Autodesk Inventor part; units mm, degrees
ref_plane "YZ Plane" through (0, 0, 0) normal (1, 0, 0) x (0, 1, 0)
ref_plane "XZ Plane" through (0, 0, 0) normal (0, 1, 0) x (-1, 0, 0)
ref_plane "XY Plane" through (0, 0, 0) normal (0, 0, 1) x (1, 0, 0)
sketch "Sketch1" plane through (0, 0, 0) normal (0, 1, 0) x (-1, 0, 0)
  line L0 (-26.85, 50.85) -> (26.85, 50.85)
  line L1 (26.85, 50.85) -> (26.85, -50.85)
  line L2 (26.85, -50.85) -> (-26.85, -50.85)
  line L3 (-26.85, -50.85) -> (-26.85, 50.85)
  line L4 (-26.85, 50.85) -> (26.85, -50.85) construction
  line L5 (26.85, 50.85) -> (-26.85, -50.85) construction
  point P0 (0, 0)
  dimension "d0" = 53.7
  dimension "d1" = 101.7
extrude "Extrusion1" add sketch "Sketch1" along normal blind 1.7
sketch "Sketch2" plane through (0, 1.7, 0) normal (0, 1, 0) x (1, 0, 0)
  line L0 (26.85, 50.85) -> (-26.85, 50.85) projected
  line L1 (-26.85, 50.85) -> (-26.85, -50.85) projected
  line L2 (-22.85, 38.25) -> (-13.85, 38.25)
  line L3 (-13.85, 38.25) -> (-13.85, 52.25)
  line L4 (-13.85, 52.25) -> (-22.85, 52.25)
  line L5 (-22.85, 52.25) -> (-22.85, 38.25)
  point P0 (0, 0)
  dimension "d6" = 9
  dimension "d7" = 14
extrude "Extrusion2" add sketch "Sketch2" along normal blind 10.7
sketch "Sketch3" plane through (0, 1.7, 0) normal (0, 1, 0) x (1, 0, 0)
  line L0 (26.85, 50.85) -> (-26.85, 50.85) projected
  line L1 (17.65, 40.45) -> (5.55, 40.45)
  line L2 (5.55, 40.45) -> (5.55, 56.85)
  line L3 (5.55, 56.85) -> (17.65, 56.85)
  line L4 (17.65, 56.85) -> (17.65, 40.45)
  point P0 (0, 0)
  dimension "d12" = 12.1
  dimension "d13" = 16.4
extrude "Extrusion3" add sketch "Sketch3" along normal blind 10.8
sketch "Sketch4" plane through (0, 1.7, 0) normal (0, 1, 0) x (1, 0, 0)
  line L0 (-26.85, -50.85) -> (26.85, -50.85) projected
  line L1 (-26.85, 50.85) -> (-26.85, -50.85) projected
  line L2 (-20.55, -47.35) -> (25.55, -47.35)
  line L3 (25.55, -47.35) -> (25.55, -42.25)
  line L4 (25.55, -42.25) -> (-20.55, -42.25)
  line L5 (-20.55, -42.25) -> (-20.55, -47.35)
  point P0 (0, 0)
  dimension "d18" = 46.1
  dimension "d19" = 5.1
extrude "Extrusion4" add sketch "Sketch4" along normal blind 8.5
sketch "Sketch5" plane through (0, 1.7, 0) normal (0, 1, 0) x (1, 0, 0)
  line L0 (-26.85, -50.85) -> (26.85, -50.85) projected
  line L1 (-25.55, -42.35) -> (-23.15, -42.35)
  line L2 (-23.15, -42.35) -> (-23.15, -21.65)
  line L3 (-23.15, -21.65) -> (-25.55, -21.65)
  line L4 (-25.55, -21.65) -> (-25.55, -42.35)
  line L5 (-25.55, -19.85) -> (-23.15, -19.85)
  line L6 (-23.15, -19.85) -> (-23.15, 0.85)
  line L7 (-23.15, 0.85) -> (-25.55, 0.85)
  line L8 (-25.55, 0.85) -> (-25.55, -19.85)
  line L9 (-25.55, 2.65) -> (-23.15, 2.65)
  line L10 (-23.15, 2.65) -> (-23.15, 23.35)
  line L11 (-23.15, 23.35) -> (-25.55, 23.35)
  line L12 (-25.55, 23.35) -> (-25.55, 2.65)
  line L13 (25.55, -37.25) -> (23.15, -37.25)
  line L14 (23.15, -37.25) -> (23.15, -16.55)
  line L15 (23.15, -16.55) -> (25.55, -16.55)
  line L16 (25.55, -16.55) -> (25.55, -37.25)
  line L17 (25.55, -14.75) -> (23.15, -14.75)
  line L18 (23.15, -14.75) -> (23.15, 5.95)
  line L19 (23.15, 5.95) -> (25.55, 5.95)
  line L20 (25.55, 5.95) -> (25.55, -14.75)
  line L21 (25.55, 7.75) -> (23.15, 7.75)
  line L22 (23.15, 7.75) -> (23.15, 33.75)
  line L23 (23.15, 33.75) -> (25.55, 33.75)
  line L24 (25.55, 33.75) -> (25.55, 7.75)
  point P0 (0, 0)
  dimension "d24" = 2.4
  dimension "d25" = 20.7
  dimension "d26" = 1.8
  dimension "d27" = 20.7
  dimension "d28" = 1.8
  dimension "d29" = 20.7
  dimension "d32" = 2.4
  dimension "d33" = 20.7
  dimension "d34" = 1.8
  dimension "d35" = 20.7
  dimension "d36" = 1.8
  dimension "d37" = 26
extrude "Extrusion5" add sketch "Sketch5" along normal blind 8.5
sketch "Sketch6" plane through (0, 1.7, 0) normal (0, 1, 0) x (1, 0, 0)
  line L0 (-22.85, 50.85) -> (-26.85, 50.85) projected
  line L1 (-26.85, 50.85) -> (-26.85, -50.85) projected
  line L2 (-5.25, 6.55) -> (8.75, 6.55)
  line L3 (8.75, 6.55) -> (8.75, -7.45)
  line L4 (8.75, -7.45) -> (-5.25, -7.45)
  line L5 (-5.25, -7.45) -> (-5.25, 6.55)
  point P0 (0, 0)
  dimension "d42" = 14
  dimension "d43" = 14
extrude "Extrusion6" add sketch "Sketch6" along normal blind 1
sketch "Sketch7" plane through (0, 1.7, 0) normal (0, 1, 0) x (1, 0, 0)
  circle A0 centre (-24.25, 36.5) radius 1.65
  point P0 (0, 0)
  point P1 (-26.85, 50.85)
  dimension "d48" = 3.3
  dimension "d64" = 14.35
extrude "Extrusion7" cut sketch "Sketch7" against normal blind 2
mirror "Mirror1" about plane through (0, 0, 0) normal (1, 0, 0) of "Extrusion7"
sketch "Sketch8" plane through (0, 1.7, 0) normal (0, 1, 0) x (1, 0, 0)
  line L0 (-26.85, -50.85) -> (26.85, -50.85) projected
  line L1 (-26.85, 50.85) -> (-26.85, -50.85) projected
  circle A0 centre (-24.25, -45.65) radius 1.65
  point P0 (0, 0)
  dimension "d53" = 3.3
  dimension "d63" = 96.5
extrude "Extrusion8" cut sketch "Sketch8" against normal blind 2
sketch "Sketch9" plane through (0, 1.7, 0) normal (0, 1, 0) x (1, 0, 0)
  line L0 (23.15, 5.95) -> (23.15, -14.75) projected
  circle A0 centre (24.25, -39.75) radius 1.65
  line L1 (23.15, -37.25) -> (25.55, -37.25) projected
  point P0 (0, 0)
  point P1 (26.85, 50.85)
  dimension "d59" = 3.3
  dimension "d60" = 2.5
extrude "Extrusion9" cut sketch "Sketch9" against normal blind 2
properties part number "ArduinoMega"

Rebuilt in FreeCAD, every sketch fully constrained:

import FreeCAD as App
import Part
import Sketcher

V = App.Vector
Q = App.Units.Quantity

doc = App.newDocument("Part")
body = doc.addObject("PartDesign::Body", "Body")

# Sketch on XZ plane
sketch1 = doc.addObject("Sketcher::SketchObject", "Sketch")
body.addObject(sketch1)
sketch1.AttachmentSupport = (doc.XZ_Plane, [""])
sketch1.MapMode = "FlatFace"
sketch1.addGeometry([
    Part.LineSegment(V(-27, 51, 0), V(27, 51, 0)),
    Part.LineSegment(V(27, 51, 0), V(27, -51, 0)),
    Part.LineSegment(V(27, -51, 0), V(-27, -51, 0)),
    Part.LineSegment(V(-27, -51, 0), V(-27, 51, 0)),
], False)
sketch1.addConstraint([
    Sketcher.Constraint("Coincident", 0, 2, 1, 1),
    Sketcher.Constraint("Coincident", 1, 2, 2, 1),
    Sketcher.Constraint("Coincident", 2, 2, 3, 1),
    Sketcher.Constraint("Coincident", 3, 2, 0, 1),
    Sketcher.Constraint("Horizontal", 0),
    Sketcher.Constraint("Vertical", 1),
    Sketcher.Constraint("Horizontal", 2),
    Sketcher.Constraint("Vertical", 3),
    Sketcher.Constraint("Symmetric", 0, 2, 2, 2, -1, 1),
    Sketcher.Constraint("DistanceX", 0, 1, 0, 2, Q("53.7 mm")),
    Sketcher.Constraint("DistanceY", 1, 2, 1, 1, Q("101.7 mm")),
])
pad1 = doc.addObject("PartDesign::Pad", "Pad")
body.addObject(pad1)
pad1.Profile = sketch1
pad1.Length = 1.7
pad1.Reversed = True

# Sketch on XZ plane
sketch2 = doc.addObject("Sketcher::SketchObject", "Sketch001")
body.addObject(sketch2)
sketch2.AttachmentSupport = (doc.XZ_Plane, [""])
sketch2.MapMode = "FlatFace"
sketch2.AttachmentOffset = App.Placement(V(0, 0, -1.7), App.Rotation())
sketch2.addGeometry([
    Part.LineSegment(V(-14, -38, 0), V(-14, -52, 0)),
    Part.LineSegment(V(-14, -52, 0), V(-23, -52, 0)),
    Part.LineSegment(V(-23, -52, 0), V(-23, -38, 0)),
    Part.LineSegment(V(-23, -38, 0), V(-14, -38, 0)),
], False)
sketch2.addConstraint([
    Sketcher.Constraint("Coincident", 0, 2, 1, 1),
    Sketcher.Constraint("Coincident", 1, 2, 2, 1),
    Sketcher.Constraint("Coincident", 2, 2, 3, 1),
    Sketcher.Constraint("Coincident", 3, 2, 0, 1),
    Sketcher.Constraint("Vertical", 0),
    Sketcher.Constraint("Horizontal", 1),
    Sketcher.Constraint("Vertical", 2),
    Sketcher.Constraint("Horizontal", 3),
    Sketcher.Constraint("DistanceX", 1, 2, 1, 1, Q("9 mm")),
    Sketcher.Constraint("DistanceY", 0, 2, 0, 1, Q("14 mm")),
    Sketcher.Constraint("DistanceX", 0, 2, -1, 1, Q("13.85 mm")),
    Sketcher.Constraint("DistanceY", 0, 2, -1, 1, Q("52.25 mm")),
])
pad2 = doc.addObject("PartDesign::Pad", "Pad001")
body.addObject(pad2)
pad2.Profile = sketch2
pad2.Length = 10.7
pad2.Reversed = True

# Sketch on XZ plane
sketch3 = doc.addObject("Sketcher::SketchObject", "Sketch002")
body.addObject(sketch3)
sketch3.AttachmentSupport = (doc.XZ_Plane, [""])
sketch3.MapMode = "FlatFace"
sketch3.AttachmentOffset = App.Placement(V(0, 0, -1.7), App.Rotation())
sketch3.addGeometry([
    Part.LineSegment(V(18, -40, 0), V(18, -57, 0)),
    Part.LineSegment(V(18, -57, 0), V(6, -57, 0)),
    Part.LineSegment(V(6, -57, 0), V(6, -40, 0)),
    Part.LineSegment(V(6, -40, 0), V(18, -40, 0)),
], False)
sketch3.addConstraint([
    Sketcher.Constraint("Coincident", 0, 2, 1, 1),
    Sketcher.Constraint("Coincident", 1, 2, 2, 1),
    Sketcher.Constraint("Coincident", 2, 2, 3, 1),
    Sketcher.Constraint("Coincident", 3, 2, 0, 1),
    Sketcher.Constraint("Vertical", 0),
    Sketcher.Constraint("Horizontal", 1),
    Sketcher.Constraint("Vertical", 2),
    Sketcher.Constraint("Horizontal", 3),
    Sketcher.Constraint("DistanceX", 1, 2, 1, 1, Q("12.1 mm")),
    Sketcher.Constraint("DistanceY", 0, 2, 0, 1, Q("16.4 mm")),
    Sketcher.Constraint("DistanceX", -1, 1, 0, 2, Q("17.65 mm")),
    Sketcher.Constraint("DistanceY", 0, 2, -1, 1, Q("56.85 mm")),
])
pad3 = doc.addObject("PartDesign::Pad", "Pad002")
body.addObject(pad3)
pad3.Profile = sketch3
pad3.Length = 10.8
pad3.Reversed = True

# Sketch on XZ plane
sketch4 = doc.addObject("Sketcher::SketchObject", "Sketch003")
body.addObject(sketch4)
sketch4.AttachmentSupport = (doc.XZ_Plane, [""])
sketch4.MapMode = "FlatFace"
sketch4.AttachmentOffset = App.Placement(V(0, 0, -1.7), App.Rotation())
sketch4.addGeometry([
    Part.LineSegment(V(-21, 42, 0), V(-21, 47, 0)),
    Part.LineSegment(V(-21, 47, 0), V(26, 47, 0)),
    Part.LineSegment(V(26, 47, 0), V(26, 42, 0)),
    Part.LineSegment(V(26, 42, 0), V(-21, 42, 0)),
], False)
sketch4.addConstraint([
    Sketcher.Constraint("Coincident", 0, 2, 1, 1),
    Sketcher.Constraint("Coincident", 1, 2, 2, 1),
    Sketcher.Constraint("Coincident", 2, 2, 3, 1),
    Sketcher.Constraint("Coincident", 3, 2, 0, 1),
    Sketcher.Constraint("Vertical", 0),
    Sketcher.Constraint("Horizontal", 1),
    Sketcher.Constraint("Vertical", 2),
    Sketcher.Constraint("Horizontal", 3),
    Sketcher.Constraint("DistanceX", 1, 1, 1, 2, Q("46.1 mm")),
    Sketcher.Constraint("DistanceY", 0, 1, 0, 2, Q("5.1 mm")),
    Sketcher.Constraint("DistanceX", 0, 2, -1, 1, Q("20.55 mm")),
    Sketcher.Constraint("DistanceY", -1, 1, 0, 2, Q("47.35 mm")),
])
pad4 = doc.addObject("PartDesign::Pad", "Pad003")
body.addObject(pad4)
pad4.Profile = sketch4
pad4.Length = 8.5
pad4.Reversed = True

# Sketch on XZ plane
sketch5 = doc.addObject("Sketcher::SketchObject", "Sketch004")
body.addObject(sketch5)
sketch5.AttachmentSupport = (doc.XZ_Plane, [""])
sketch5.MapMode = "FlatFace"
sketch5.AttachmentOffset = App.Placement(V(0, 0, -1.7), App.Rotation())
sketch5.addGeometry([
    Part.LineSegment(V(-25.6, 21.6, 0), V(-25.6, 42.4, 0)),  # 0
    Part.LineSegment(V(-25.6, 42.4, 0), V(-23.1, 42.4, 0)),  # 1
    Part.LineSegment(V(-23.1, 42.4, 0), V(-23.1, 21.6, 0)),  # 2
    Part.LineSegment(V(-23.1, 21.6, 0), V(-25.6, 21.6, 0)),  # 3
    Part.LineSegment(V(-25.6, -0.8, 0), V(-25.6, 19.9, 0)),  # 4
    Part.LineSegment(V(-25.6, 19.9, 0), V(-23.1, 19.9, 0)),  # 5
    Part.LineSegment(V(-23.1, 19.9, 0), V(-23.1, -0.8, 0)),  # 6
    Part.LineSegment(V(-23.1, -0.8, 0), V(-25.6, -0.8, 0)),  # 7
    Part.LineSegment(V(-25.6, -23.4, 0), V(-25.6, -2.6, 0)),  # 8
    Part.LineSegment(V(-25.6, -2.6, 0), V(-23.1, -2.6, 0)),  # 9
    Part.LineSegment(V(-23.1, -2.6, 0), V(-23.1, -23.4, 0)),  # 10
    Part.LineSegment(V(-23.1, -23.4, 0), V(-25.6, -23.4, 0)),  # 11
    Part.LineSegment(V(23.1, 37.2, 0), V(25.6, 37.2, 0)),  # 12
    Part.LineSegment(V(25.6, 37.2, 0), V(25.6, 16.6, 0)),  # 13
    Part.LineSegment(V(25.6, 16.6, 0), V(23.1, 16.6, 0)),  # 14
    Part.LineSegment(V(23.1, 16.6, 0), V(23.1, 37.2, 0)),  # 15
    Part.LineSegment(V(23.1, 14.8, 0), V(25.6, 14.8, 0)),  # 16
    Part.LineSegment(V(25.6, 14.8, 0), V(25.6, -6, 0)),  # 17
    Part.LineSegment(V(25.6, -6, 0), V(23.1, -6, 0)),  # 18
    Part.LineSegment(V(23.1, -6, 0), V(23.1, 14.8, 0)),  # 19
    Part.LineSegment(V(23.1, -7.8, 0), V(25.6, -7.8, 0)),  # 20
    Part.LineSegment(V(25.6, -7.8, 0), V(25.6, -33.8, 0)),  # 21
    Part.LineSegment(V(25.6, -33.8, 0), V(23.1, -33.8, 0)),  # 22
    Part.LineSegment(V(23.1, -33.8, 0), V(23.1, -7.8, 0)),  # 23
], False)
sketch5.addConstraint([
    Sketcher.Constraint("Coincident", 0, 2, 1, 1),
    Sketcher.Constraint("Coincident", 1, 2, 2, 1),
    Sketcher.Constraint("Coincident", 2, 2, 3, 1),
    Sketcher.Constraint("Coincident", 3, 2, 0, 1),
    Sketcher.Constraint("Coincident", 4, 2, 5, 1),
    Sketcher.Constraint("Coincident", 5, 2, 6, 1),
    Sketcher.Constraint("Coincident", 6, 2, 7, 1),
    Sketcher.Constraint("Coincident", 7, 2, 4, 1),
    Sketcher.Constraint("Coincident", 8, 2, 9, 1),
    Sketcher.Constraint("Coincident", 9, 2, 10, 1),
    Sketcher.Constraint("Coincident", 10, 2, 11, 1),
    Sketcher.Constraint("Coincident", 11, 2, 8, 1),
    Sketcher.Constraint("Coincident", 12, 2, 13, 1),
    Sketcher.Constraint("Coincident", 13, 2, 14, 1),
    Sketcher.Constraint("Coincident", 14, 2, 15, 1),
    Sketcher.Constraint("Coincident", 15, 2, 12, 1),
    Sketcher.Constraint("Coincident", 16, 2, 17, 1),
    Sketcher.Constraint("Coincident", 17, 2, 18, 1),
    Sketcher.Constraint("Coincident", 18, 2, 19, 1),
    Sketcher.Constraint("Coincident", 19, 2, 16, 1),
    Sketcher.Constraint("Coincident", 20, 2, 21, 1),
    Sketcher.Constraint("Coincident", 21, 2, 22, 1),
    Sketcher.Constraint("Coincident", 22, 2, 23, 1),
    Sketcher.Constraint("Coincident", 23, 2, 20, 1),
    Sketcher.Constraint("Vertical", 0),
    Sketcher.Constraint("Horizontal", 1),
    Sketcher.Constraint("Vertical", 2),
    Sketcher.Constraint("Horizontal", 3),
    Sketcher.Constraint("Vertical", 4),
    Sketcher.Constraint("Horizontal", 5),
    Sketcher.Constraint("Vertical", 6),
    Sketcher.Constraint("Horizontal", 7),
    Sketcher.Constraint("Vertical", 8),
    Sketcher.Constraint("Horizontal", 9),
    Sketcher.Constraint("Vertical", 10),
    Sketcher.Constraint("Horizontal", 11),
    Sketcher.Constraint("Horizontal", 12),
    Sketcher.Constraint("Vertical", 13),
    Sketcher.Constraint("Horizontal", 14),
    Sketcher.Constraint("Vertical", 15),
    Sketcher.Constraint("Horizontal", 16),
    Sketcher.Constraint("Vertical", 17),
    Sketcher.Constraint("Horizontal", 18),
    Sketcher.Constraint("Vertical", 19),
    Sketcher.Constraint("Horizontal", 20),
    Sketcher.Constraint("Vertical", 21),
    Sketcher.Constraint("Horizontal", 22),
    Sketcher.Constraint("Vertical", 23),
    Sketcher.Constraint("Vertical", 3, 2, 4, 2),
    Sketcher.Constraint("Vertical", 2, 2, 5, 2),
    Sketcher.Constraint("Vertical", 7, 2, 8, 2),
    Sketcher.Constraint("Vertical", 6, 2, 9, 2),
    Sketcher.Constraint("Vertical", 13, 2, 16, 2),
    Sketcher.Constraint("Vertical", 15, 2, 18, 2),
    Sketcher.Constraint("Vertical", 17, 2, 20, 2),
    Sketcher.Constraint("Vertical", 19, 2, 22, 2),
    Sketcher.Constraint("Equal", 11, 12),
    Sketcher.Constraint("Equal", 2, 4),
    Sketcher.Constraint("Equal", 6, 8),
    Sketcher.Constraint("Equal", 10, 13),
    Sketcher.Constraint("Equal", 15, 17),
    Sketcher.Constraint("DistanceY", 21, 2, 21, 1, Q("26 mm")),
    Sketcher.Constraint("DistanceX", 1, 1, 1, 2, Q("2.4 mm")),
    Sketcher.Constraint("DistanceY", 0, 1, 0, 2, Q("20.7 mm")),
    Sketcher.Constraint("DistanceY", 4, 2, 3, 2, Q("1.8 mm")),
    Sketcher.Constraint("DistanceY", 8, 2, 7, 2, Q("1.8 mm")),
    Sketcher.Constraint("DistanceY", 16, 2, 13, 2, Q("1.8 mm")),
    Sketcher.Constraint("DistanceY", 20, 2, 17, 2, Q("1.8 mm")),
    Sketcher.Constraint("DistanceX", 1, 2, 12, 2, Q("48.7 mm")),
    Sketcher.Constraint("DistanceY", 12, 2, 1, 2, Q("5.1 mm")),
    Sketcher.Constraint("DistanceX", 0, 2, -1, 1, Q("25.55 mm")),
    Sketcher.Constraint("DistanceY", -1, 1, 0, 2, Q("42.35 mm")),
])
pad5 = doc.addObject("PartDesign::Pad", "Pad004")
body.addObject(pad5)
pad5.Profile = sketch5
pad5.Length = 8.5
pad5.Reversed = True

# Sketch on XZ plane
sketch6 = doc.addObject("Sketcher::SketchObject", "Sketch005")
body.addObject(sketch6)
sketch6.AttachmentSupport = (doc.XZ_Plane, [""])
sketch6.MapMode = "FlatFace"
sketch6.AttachmentOffset = App.Placement(V(0, 0, -1.7), App.Rotation())
sketch6.addGeometry([
    Part.LineSegment(V(9, -7, 0), V(-5, -7, 0)),
    Part.LineSegment(V(-5, -7, 0), V(-5, 7, 0)),
    Part.LineSegment(V(-5, 7, 0), V(9, 7, 0)),
    Part.LineSegment(V(9, 7, 0), V(9, -7, 0)),
], False)
sketch6.addConstraint([
    Sketcher.Constraint("Coincident", 0, 2, 1, 1),
    Sketcher.Constraint("Coincident", 1, 2, 2, 1),
    Sketcher.Constraint("Coincident", 2, 2, 3, 1),
    Sketcher.Constraint("Coincident", 3, 2, 0, 1),
    Sketcher.Constraint("Horizontal", 0),
    Sketcher.Constraint("Vertical", 1),
    Sketcher.Constraint("Horizontal", 2),
    Sketcher.Constraint("Vertical", 3),
    Sketcher.Constraint("Equal", 2, 1),
    Sketcher.Constraint("DistanceX", 0, 2, 0, 1, Q("14 mm")),
    Sketcher.Constraint("DistanceX", 0, 2, -1, 1, Q("5.25 mm")),
    Sketcher.Constraint("DistanceY", 0, 2, -1, 1, Q("6.55 mm")),
])
pad6 = doc.addObject("PartDesign::Pad", "Pad005")
body.addObject(pad6)
pad6.Profile = sketch6
pad6.Length = 1
pad6.Reversed = True

# Sketch on XZ plane
sketch7 = doc.addObject("Sketcher::SketchObject", "Sketch006")
body.addObject(sketch7)
sketch7.AttachmentSupport = (doc.XZ_Plane, [""])
sketch7.MapMode = "FlatFace"
sketch7.AttachmentOffset = App.Placement(V(0, 0, -1.7), App.Rotation())
sketch7.addGeometry(Part.Circle(V(-24.2, -36.5, 0), V(0, 0, 1), 1.6), False)
sketch7.addConstraint([
    Sketcher.Constraint("Diameter", 0, Q("3.3 mm")),
    Sketcher.Constraint("DistanceY", 0, 3, -1, 1, Q("36.5 mm")),
    Sketcher.Constraint("DistanceX", 0, 3, -1, 1, Q("24.25 mm")),
])
pocket1 = doc.addObject("PartDesign::Pocket", "Pocket")
body.addObject(pocket1)
pocket1.Profile = sketch7
pocket1.Length = 2
pocket1.Reversed = True
doc.recompute()

mirrored = doc.addObject("PartDesign::Mirrored", "Mirrored")
body.addObject(mirrored)
mirrored.Originals = [pocket1]
mirrored.MirrorPlane = (doc.YZ_Plane, [""])
body.Tip = mirrored

# Sketch on XZ plane
sketch8 = doc.addObject("Sketcher::SketchObject", "Sketch007")
body.addObject(sketch8)
sketch8.AttachmentSupport = (doc.XZ_Plane, [""])
sketch8.MapMode = "FlatFace"
sketch8.AttachmentOffset = App.Placement(V(0, 0, -1.7), App.Rotation())
sketch8.addGeometry(Part.Circle(V(-24.2, 45.6, 0), V(0, 0, 1), 1.6), False)
sketch8.addConstraint([
    Sketcher.Constraint("Diameter", 0, Q("3.3 mm")),
    Sketcher.Constraint("DistanceX", 0, 3, -1, 1, Q("24.25 mm")),
    Sketcher.Constraint("DistanceY", -1, 1, 0, 3, Q("45.65 mm")),
])
pocket2 = doc.addObject("PartDesign::Pocket", "Pocket001")
body.addObject(pocket2)
pocket2.Profile = sketch8
pocket2.Length = 2
pocket2.Reversed = True

# Sketch on XZ plane
sketch9 = doc.addObject("Sketcher::SketchObject", "Sketch008")
body.addObject(sketch9)
sketch9.AttachmentSupport = (doc.XZ_Plane, [""])
sketch9.MapMode = "FlatFace"
sketch9.AttachmentOffset = App.Placement(V(0, 0, -1.7), App.Rotation())
sketch9.addGeometry(Part.Circle(V(24.2, 39.8, 0), V(0, 0, 1), 1.6), False)
sketch9.addConstraint([
    Sketcher.Constraint("Diameter", 0, Q("3.3 mm")),
    Sketcher.Constraint("DistanceX", -1, 1, 0, 3, Q("24.25 mm")),
    Sketcher.Constraint("DistanceY", -1, 1, 0, 3, Q("39.75 mm")),
])
pocket3 = doc.addObject("PartDesign::Pocket", "Pocket002")
body.addObject(pocket3)
pocket3.Profile = sketch9
pocket3.Length = 2
pocket3.Reversed = True

doc.recompute()
